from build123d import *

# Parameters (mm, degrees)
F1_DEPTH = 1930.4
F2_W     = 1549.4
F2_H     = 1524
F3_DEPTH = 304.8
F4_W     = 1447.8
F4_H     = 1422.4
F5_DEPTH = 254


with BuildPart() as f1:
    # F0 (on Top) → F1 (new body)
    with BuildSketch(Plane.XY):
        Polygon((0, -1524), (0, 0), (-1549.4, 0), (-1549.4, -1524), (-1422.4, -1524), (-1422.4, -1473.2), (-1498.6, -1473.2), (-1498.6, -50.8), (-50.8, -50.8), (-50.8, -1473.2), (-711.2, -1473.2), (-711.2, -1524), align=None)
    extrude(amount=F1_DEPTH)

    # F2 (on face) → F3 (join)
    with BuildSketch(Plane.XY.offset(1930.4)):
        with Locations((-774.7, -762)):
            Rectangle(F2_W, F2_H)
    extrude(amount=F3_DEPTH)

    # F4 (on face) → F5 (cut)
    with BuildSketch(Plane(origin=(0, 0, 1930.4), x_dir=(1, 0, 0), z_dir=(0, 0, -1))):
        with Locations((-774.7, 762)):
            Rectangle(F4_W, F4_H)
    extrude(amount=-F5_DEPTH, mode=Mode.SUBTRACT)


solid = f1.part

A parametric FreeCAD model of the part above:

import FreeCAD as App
import Part
import Sketcher
from FreeCAD import Vector
Q = App.Units.Quantity

doc = App.newDocument("Part")
body = doc.addObject("PartDesign::Body", "Body")

sketch1 = body.newObject("Sketcher::SketchObject", "Sketch")
sketch1.AttachmentSupport = (doc.getObject("XY_Plane"), [""])
sketch1.MapMode = "FlatFace"
sketch1.addGeometry([
    Part.LineSegment(Vector(0, -1524, 0), Vector(0, 0, 0)),
    Part.LineSegment(Vector(0, 0, 0), Vector(-1549, 0, 0)),
    Part.LineSegment(Vector(-1549, 0, 0), Vector(-1549, -1524, 0)),
    Part.LineSegment(Vector(-1549, -1524, 0), Vector(-1422, -1524, 0)),
    Part.LineSegment(Vector(-1422, -1524, 0), Vector(-1422, -1473, 0)),
    Part.LineSegment(Vector(-1422, -1473, 0), Vector(-1499, -1473, 0)),
    Part.LineSegment(Vector(-1499, -1473, 0), Vector(-1499, -51, 0)),
    Part.LineSegment(Vector(-1499, -51, 0), Vector(-51, -51, 0)),
    Part.LineSegment(Vector(-51, -51, 0), Vector(-51, -1473, 0)),
    Part.LineSegment(Vector(-51, -1473, 0), Vector(-711, -1473, 0)),
    Part.LineSegment(Vector(-711, -1473, 0), Vector(-711, -1524, 0)),
    Part.LineSegment(Vector(-711, -1524, 0), Vector(0, -1524, 0)),
], False)
sketch1.addConstraint([
    Sketcher.Constraint("Coincident", 0, 2, 1, 1),
    Sketcher.Constraint("Coincident", 1, 2, 2, 1),
    Sketcher.Constraint("Coincident", 2, 2, 3, 1),
    Sketcher.Constraint("Coincident", 3, 2, 4, 1),
    Sketcher.Constraint("Coincident", 4, 2, 5, 1),
    Sketcher.Constraint("Coincident", 5, 2, 6, 1),
    Sketcher.Constraint("Coincident", 6, 2, 7, 1),
    Sketcher.Constraint("Coincident", 7, 2, 8, 1),
    Sketcher.Constraint("Coincident", 8, 2, 9, 1),
    Sketcher.Constraint("Coincident", 9, 2, 10, 1),
    Sketcher.Constraint("Coincident", 10, 2, 11, 1),
    Sketcher.Constraint("Coincident", 11, 2, 0, 1),
    Sketcher.Constraint("Vertical", 0),
    Sketcher.Constraint("Horizontal", 1),
    Sketcher.Constraint("Vertical", 2),
    Sketcher.Constraint("Horizontal", 3),
    Sketcher.Constraint("Vertical", 4),
    Sketcher.Constraint("Horizontal", 5),
    Sketcher.Constraint("Vertical", 6),
    Sketcher.Constraint("Horizontal", 7),
    Sketcher.Constraint("Vertical", 8),
    Sketcher.Constraint("Horizontal", 9),
    Sketcher.Constraint("Vertical", 10),
    Sketcher.Constraint("Horizontal", 11),
    Sketcher.Constraint("Coincident", 0, 2, -1, 1),
    Sketcher.Constraint("Horizontal", 5, 2, 8, 2),
    Sketcher.Constraint("Horizontal", 3, 2, 10, 2),
    Sketcher.Constraint("DistanceX", 1, 2, 1, 1, Q("61 in")),
    Sketcher.Constraint("DistanceX", 3, 1, 3, 2, Q("5 in")),
    Sketcher.Constraint("DistanceX", 5, 2, 5, 1, Q("3 in")),
    Sketcher.Constraint("DistanceX", 7, 1, 7, 2, Q("57 in")),
    Sketcher.Constraint("DistanceX", 9, 2, 9, 1, Q("26 in")),
    Sketcher.Constraint("DistanceY", 0, 1, 0, 2, Q("60 in")),
    Sketcher.Constraint("DistanceY", 4, 1, 4, 2, Q("2 in")),
    Sketcher.Constraint("DistanceY", 6, 1, 6, 2, Q("56 in")),
])
pad1 = body.newObject("PartDesign::Pad", "Pad")
pad1.Profile = sketch1
pad1.Length = Q("76 in")

sketch2 = body.newObject("Sketcher::SketchObject", "Sketch001")
sketch2.AttachmentSupport = (doc.getObject("XY_Plane"), [""])
sketch2.MapMode = "FlatFace"
sketch2.AttachmentOffset = App.Placement(Vector(0, 0, 76 * 25.4), App.Rotation())
sketch2.addGeometry([
    Part.LineSegment(Vector(-1549, 0, 0), Vector(-1549, -1524, 0)),
    Part.LineSegment(Vector(-1549, -1524, 0), Vector(0, -1524, 0)),
    Part.LineSegment(Vector(0, -1524, 0), Vector(0, 0, 0)),
    Part.LineSegment(Vector(0, 0, 0), Vector(-1549, 0, 0)),
], False)
sketch2.addConstraint([
    Sketcher.Constraint("Coincident", 0, 2, 1, 1),
    Sketcher.Constraint("Coincident", 1, 2, 2, 1),
    Sketcher.Constraint("Coincident", 2, 2, 3, 1),
    Sketcher.Constraint("Coincident", 3, 2, 0, 1),
    Sketcher.Constraint("Vertical", 0),
    Sketcher.Constraint("Horizontal", 1),
    Sketcher.Constraint("Vertical", 2),
    Sketcher.Constraint("Horizontal", 3),
    Sketcher.Constraint("Coincident", 2, 2, -1, 1),
    Sketcher.Constraint("DistanceX", 1, 1, 1, 2, Q("61 in")),
    Sketcher.Constraint("DistanceY", 0, 2, 0, 1, Q("60 in")),
])
pad2 = body.newObject("PartDesign::Pad", "Pad001")
pad2.Profile = sketch2
pad2.Length = Q("12 in")

sketch3 = body.newObject("Sketcher::SketchObject", "Sketch002")
sketch3.AttachmentSupport = (doc.getObject("XY_Plane"), [""])
sketch3.MapMode = "FlatFace"
sketch3.AttachmentOffset = App.Placement(Vector(0, 0, 76 * 25.4), App.Rotation())
sketch3.addGeometry([
    Part.LineSegment(Vector(-1499, -1473, 0), Vector(-1499, -51, 0)),
    Part.LineSegment(Vector(-1499, -51, 0), Vector(-51, -51, 0)),
    Part.LineSegment(Vector(-51, -51, 0), Vector(-51, -1473, 0)),
    Part.LineSegment(Vector(-51, -1473, 0), Vector(-1499, -1473, 0)),
], False)
sketch3.addConstraint([
    Sketcher.Constraint("Coincident", 0, 2, 1, 1),
    Sketcher.Constraint("Coincident", 1, 2, 2, 1),
    Sketcher.Constraint("Coincident", 2, 2, 3, 1),
    Sketcher.Constraint("Coincident", 3, 2, 0, 1),
    Sketcher.Constraint("Vertical", 0),
    Sketcher.Constraint("Horizontal", 1),
    Sketcher.Constraint("Vertical", 2),
    Sketcher.Constraint("Horizontal", 3),
    Sketcher.Constraint("DistanceX", 1, 1, 1, 2, Q("57 in")),
    Sketcher.Constraint("DistanceY", 0, 1, 0, 2, Q("56 in")),
    Sketcher.Constraint("DistanceX", 0, 2, -1, 1, Q("59 in")),
    Sketcher.Constraint("DistanceY", 0, 2, -1, 1, Q("2 in")),
])
pocket1 = body.newObject("PartDesign::Pocket", "Pocket")
pocket1.Profile = sketch3
pocket1.Length = Q("10 in")
pocket1.Reversed = True

doc.recompute()
